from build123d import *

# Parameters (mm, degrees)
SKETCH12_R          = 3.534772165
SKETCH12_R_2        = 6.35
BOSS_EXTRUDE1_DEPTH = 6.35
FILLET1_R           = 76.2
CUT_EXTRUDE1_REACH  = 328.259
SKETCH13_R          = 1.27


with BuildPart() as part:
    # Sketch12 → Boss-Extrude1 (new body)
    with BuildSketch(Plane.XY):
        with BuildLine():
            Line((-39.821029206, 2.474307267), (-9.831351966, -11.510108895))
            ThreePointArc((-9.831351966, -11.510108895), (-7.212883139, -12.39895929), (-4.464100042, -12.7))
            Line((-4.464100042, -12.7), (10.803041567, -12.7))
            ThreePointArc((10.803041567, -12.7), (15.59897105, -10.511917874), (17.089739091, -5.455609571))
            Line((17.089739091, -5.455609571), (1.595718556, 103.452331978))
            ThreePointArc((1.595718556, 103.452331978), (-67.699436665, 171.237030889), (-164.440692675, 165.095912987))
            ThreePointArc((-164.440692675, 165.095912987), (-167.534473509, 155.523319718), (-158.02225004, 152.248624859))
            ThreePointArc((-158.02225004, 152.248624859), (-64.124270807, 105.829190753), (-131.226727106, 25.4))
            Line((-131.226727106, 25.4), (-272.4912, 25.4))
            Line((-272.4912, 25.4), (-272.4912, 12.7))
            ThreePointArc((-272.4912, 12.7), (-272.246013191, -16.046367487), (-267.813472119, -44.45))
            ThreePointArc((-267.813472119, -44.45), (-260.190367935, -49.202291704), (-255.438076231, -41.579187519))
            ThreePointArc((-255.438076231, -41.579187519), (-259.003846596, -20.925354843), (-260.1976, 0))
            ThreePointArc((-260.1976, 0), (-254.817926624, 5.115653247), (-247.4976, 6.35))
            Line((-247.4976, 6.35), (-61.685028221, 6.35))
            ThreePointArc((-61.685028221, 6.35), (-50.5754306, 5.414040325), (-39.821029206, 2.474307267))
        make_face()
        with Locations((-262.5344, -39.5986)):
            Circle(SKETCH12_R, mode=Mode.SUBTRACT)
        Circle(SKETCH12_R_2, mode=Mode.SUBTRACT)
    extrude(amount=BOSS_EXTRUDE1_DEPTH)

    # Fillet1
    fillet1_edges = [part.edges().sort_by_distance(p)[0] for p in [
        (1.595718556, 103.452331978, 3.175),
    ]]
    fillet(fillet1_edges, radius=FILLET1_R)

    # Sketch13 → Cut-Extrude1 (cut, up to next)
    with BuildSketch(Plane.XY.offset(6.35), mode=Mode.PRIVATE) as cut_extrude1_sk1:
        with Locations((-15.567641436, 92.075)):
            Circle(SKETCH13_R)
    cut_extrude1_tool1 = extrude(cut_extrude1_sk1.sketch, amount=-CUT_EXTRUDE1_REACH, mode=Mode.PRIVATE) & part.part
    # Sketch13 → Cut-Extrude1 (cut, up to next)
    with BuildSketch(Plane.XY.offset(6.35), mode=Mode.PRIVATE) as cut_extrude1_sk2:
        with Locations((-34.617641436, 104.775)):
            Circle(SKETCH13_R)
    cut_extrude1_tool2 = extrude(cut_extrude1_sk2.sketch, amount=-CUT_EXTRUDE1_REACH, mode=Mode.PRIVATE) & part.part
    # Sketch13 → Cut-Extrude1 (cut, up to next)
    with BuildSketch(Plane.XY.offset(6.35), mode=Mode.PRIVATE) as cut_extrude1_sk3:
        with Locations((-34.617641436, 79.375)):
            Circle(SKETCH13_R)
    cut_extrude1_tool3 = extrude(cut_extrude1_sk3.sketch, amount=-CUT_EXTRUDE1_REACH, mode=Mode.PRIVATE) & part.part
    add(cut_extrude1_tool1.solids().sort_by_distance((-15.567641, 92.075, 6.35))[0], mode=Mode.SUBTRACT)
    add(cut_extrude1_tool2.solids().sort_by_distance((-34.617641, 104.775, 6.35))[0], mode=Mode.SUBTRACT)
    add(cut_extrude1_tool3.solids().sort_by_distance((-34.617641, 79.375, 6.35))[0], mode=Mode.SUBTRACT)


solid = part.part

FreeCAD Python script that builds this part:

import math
import FreeCAD as App
import Part
import Sketcher
from FreeCAD import Vector
Q = App.Units.Quantity


def edges_at(feature, points):
    """Names of the edges that pass closest to the given points."""
    edges = feature.Shape.Edges
    near = lambda p: min(range(len(edges)), key=lambda i: edges[i].distToShape(Part.Vertex(*p))[0])
    return sorted({f"Edge{near(p) + 1}" for p in points})

doc = App.newDocument("Part")
params = doc.addObject("Spreadsheet::Sheet", "Params")
for row, (alias, value) in enumerate([
    ("sketch1_diameter", "0.5 in"),
    ("sketch1_radius", "0.5 in"),
    ("sketch1_radius2", "0.5 in"),
    ("sketch1_radius3", "0.25 in"),
    ("sketch1_height", "0.5 in"),
    ("pad1_length", "0.25 in"),
    ("fillet_radius", "3 in"),
    ("sketch2_diameter", "0.1 in"),
    ("sketch3_diameter", "0.1 in"),
    ("sketch4_diameter", "0.1 in"),
], start=1):
    params.set(f"A{row}", alias)
    params.set(f"B{row}", "=" + value)
    params.setAlias(f"B{row}", alias)

body = doc.addObject("PartDesign::Body", "Body")

# Sketch on XY plane
sketch1 = body.newObject("Sketcher::SketchObject", "Sketch")
sketch1.AttachmentSupport = (doc.getObject("XY_Plane"), [""])
sketch1.MapMode = "FlatFace"
sketch1.addGeometry([
    Part.LineSegment(Vector(-39.821029, 2.474307, 0), Vector(-9.831352, -11.510109, 0)),  # 0
    Part.ArcOfCircle(Part.Circle(Vector(-4.4641, 0, 0), Vector(0, 0, 1), 12.7), math.radians(-115), math.radians(-90)),  # 1
    Part.LineSegment(Vector(-4.4641, -12.7, 0), Vector(10.803042, -12.7, 0)),  # 2
    Part.ArcOfCircle(Part.Circle(Vector(10.803042, -6.35, 0), Vector(0, 0, 1), 6.35), math.radians(-90), math.radians(8.096971)),  # 3
    Part.LineSegment(Vector(17.089739, -5.45561, 0), Vector(1.595719, 103.452332, 0)),  # 4
    Part.ArcOfCircle(Part.Circle(Vector(-109.17363, 59.526678, 0), Vector(0, 0, 1), 119.160864), math.radians(21.630832), math.radians(117.632726)),  # 5
    Part.ArcOfCircle(Part.Circle(Vector(-161.109675, 158.733118, 0), Vector(0, 0, 1), 7.18198), math.radians(117.632726), math.radians(295.460255)),  # 6
    Part.ArcOfCircle(Part.Circle(Vector(-129.359675, 92.048854, 0), Vector(0, 0, 1), 66.675), math.radians(-91.604622), math.radians(115.460255)),  # 7
    Part.LineSegment(Vector(-131.226727, 25.4, 0), Vector(-272.4912, 25.4, 0)),  # 8
    Part.LineSegment(Vector(-272.4912, 25.4, 0), Vector(-272.4912, 12.7, 0)),  # 9
    Part.ArcOfCircle(Part.Circle(Vector(-76.2, 0, 0), Vector(0, 0, 1), 196.701615), math.radians(176.298135), math.radians(193.060324)),  # 10
    Part.ArcOfCircle(Part.Circle(Vector(-261.625774, -43.014594, 0), Vector(0, 0, 1), 6.352007), math.radians(-166.939676), math.radians(13.060324)),  # 11
    Part.ArcOfCircle(Part.Circle(Vector(-76.2, 0, 0), Vector(0, 0, 1), 183.9976), math.radians(-180), math.radians(-166.939676)),  # 12
    Part.ArcOfCircle(Part.Circle(Vector(-249.138314, -6.243572, 0), Vector(0, 0, 1), 12.7), math.radians(82.577208), math.radians(150.552895)),  # 13
    Part.LineSegment(Vector(-247.4976, 6.35, 0), Vector(-61.685028, 6.35, 0)),  # 14
    Part.ArcOfCircle(Part.Circle(Vector(-61.236551, -54.728684, 0), Vector(0, 0, 1), 61.08033), math.radians(69.475223), math.radians(90.420694)),  # 15
    Part.Circle(Vector(-262.5344, -39.5986, 0), Vector(0, 0, 1), 3.534772),  # 16
    Part.Circle(Vector(0, 0, 0), Vector(0, 0, 1), 6.35),  # 17
], False)
sketch1.addConstraint([
    Sketcher.Constraint("Coincident", 0, 2, 1, 1),
    Sketcher.Constraint("Coincident", 1, 2, 2, 1),
    Sketcher.Constraint("Coincident", 2, 2, 3, 1),
    Sketcher.Constraint("Coincident", 3, 2, 4, 1),
    Sketcher.Constraint("Coincident", 4, 2, 5, 1),
    Sketcher.Constraint("Coincident", 5, 2, 6, 1),
    Sketcher.Constraint("Coincident", 6, 2, 7, 2),
    Sketcher.Constraint("Coincident", 7, 1, 8, 1),
    Sketcher.Constraint("Coincident", 8, 2, 9, 1),
    Sketcher.Constraint("Coincident", 9, 2, 10, 1),
    Sketcher.Constraint("Coincident", 10, 2, 11, 1),
    Sketcher.Constraint("Coincident", 11, 2, 12, 2),
    Sketcher.Constraint("Coincident", 12, 1, 13, 2),
    Sketcher.Constraint("Coincident", 13, 1, 14, 1),
    Sketcher.Constraint("Coincident", 14, 2, 15, 2),
    Sketcher.Constraint("Coincident", 15, 1, 0, 1),
    Sketcher.Constraint("Horizontal", 2),
    Sketcher.Constraint("Horizontal", 8),
    Sketcher.Constraint("Vertical", 9),
    Sketcher.Constraint("Horizontal", 14),
    Sketcher.Constraint("Coincident", 17, 3, -1, 1),
    Sketcher.Constraint("Coincident", 12, 3, 10, 3),
    Sketcher.Constraint("PointOnObject", 1, 3, -1),
    Sketcher.Constraint("PointOnObject", 10, 3, -1),
    Sketcher.Constraint("PointOnObject", 12, 1, -1),
    Sketcher.Constraint("Diameter", 17, Q("0.5 in")),
    Sketcher.Constraint("Radius", 1, Q("0.5 in")),
    Sketcher.Constraint("Radius", 13, Q("0.5 in")),
    Sketcher.Constraint("Radius", 3, Q("0.25 in")),
    Sketcher.Constraint("DistanceY", 9, 2, 9, 1, Q("0.5 in")),
    Sketcher.Constraint("DistanceX", 10, 3, -1, 1, Q("3 in")),
    Sketcher.Constraint("DistanceY", -1, 1, 7, 1, Q("1 in")),
    Sketcher.Constraint("Radius", 7, Q("2.625 in")),
    Sketcher.Constraint("Radius", 12, Q("7.244 in")),
    Sketcher.Constraint("DistanceX", 12, 1, 13, 1, Q("0.5 in")),
    Sketcher.Constraint("DistanceY", 10, 2, -1, 1, Q("1.75 in")),
    Sketcher.Constraint("DistanceY", -1, 1, 13, 1, Q("0.25 in")),
    Sketcher.Constraint("DistanceX", 6, 3, 7, 3, Q("1.25 in")),
    Sketcher.Constraint("DistanceX", 16, 3, -1, 1, Q("10.336 in")),
    Sketcher.Constraint("DistanceY", 16, 3, -1, 1, Q("1.559 in")),
    Sketcher.Constraint("DistanceX", 8, 2, -1, 1, Q("10.728 in")),
    Sketcher.Constraint("Radius", 6, Q("7.18198 mm")),
    Sketcher.Constraint("Radius", 15, Q("61.08033 mm")),
    Sketcher.Constraint("Diameter", 16, Q("7.069544 mm")),
    Sketcher.Constraint("Radius", 5, Q("119.160864 mm")),
    Sketcher.Constraint("DistanceX", 2, 1, 2, 2, Q("15.267142 mm")),
    Sketcher.Constraint("DistanceX", 14, 1, 14, 2, Q("185.812572 mm")),
    Sketcher.Constraint("DistanceX", 1, 3, -1, 1, Q("4.4641 mm")),
    Sketcher.Constraint("DistanceX", 1, 2, -1, 1, Q("4.4641 mm")),
    Sketcher.Constraint("DistanceX", 11, 3, 7, 3, Q("132.266099 mm")),
    Sketcher.Constraint("DistanceX", 15, 3, 0, 2, Q("51.405199 mm")),
    Sketcher.Constraint("DistanceX", 14, 2, 15, 1, Q("21.863999 mm")),
    Sketcher.Constraint("DistanceX", 8, 2, 8, 1, Q("141.264473 mm")),
    Sketcher.Constraint("DistanceX", -1, 1, 3, 3, Q("10.803042 mm")),
    Sketcher.Constraint("DistanceX", 5, 3, -1, 1, Q("109.17363 mm")),
    Sketcher.Constraint("DistanceY", -1, 1, 5, 3, Q("59.526678 mm")),
    Sketcher.Constraint("DistanceX", 15, 3, -1, 1, Q("61.236551 mm")),
    Sketcher.Constraint("DistanceX", -1, 1, 3, 2, Q("17.089739 mm")),
    Sketcher.Constraint("DistanceX", -1, 1, 4, 2, Q("1.595719 mm")),
    Sketcher.Constraint("DistanceX", 6, 2, -1, 1, Q("158.02225 mm")),
    Sketcher.Constraint("DistanceY", 7, 3, 5, 2, Q("73.047059 mm")),
    Sketcher.Constraint("DistanceX", 11, 2, -1, 1, Q("255.438076 mm")),
])
sketch1.setExpression("Constraints[25]", "Params.sketch1_diameter")
sketch1.setExpression("Constraints[26]", "Params.sketch1_radius")
sketch1.setExpression("Constraints[27]", "Params.sketch1_radius2")
sketch1.setExpression("Constraints[28]", "Params.sketch1_radius3")
sketch1.setExpression("Constraints[29]", "Params.sketch1_height")
pad1 = body.newObject("PartDesign::Pad", "Pad")
pad1.Profile = sketch1
pad1.setExpression("Length", "Params.pad1_length")
doc.recompute()

fillet = body.newObject("PartDesign::Fillet", "Fillet")
fillet.Base = (pad1, edges_at(pad1, [(1.596, 103.452, 3.175)]))
fillet.setExpression("Radius", "Params.fillet_radius")

# Sketch on XY plane
sketch2 = body.newObject("Sketcher::SketchObject", "Sketch001")
sketch2.AttachmentSupport = (doc.getObject("XY_Plane"), [""])
sketch2.MapMode = "FlatFace"
sketch2.AttachmentOffset = App.Placement(Vector(0, 0, 0.25 * 25.4), App.Rotation())
sketch2.addGeometry(Part.Circle(Vector(-15.6, 92.1, 0), Vector(0, 0, 1), 1.3), False)
sketch2.addConstraint([
    Sketcher.Constraint("Diameter", 0, Q("0.1 in")),
    Sketcher.Constraint("DistanceY", -1, 1, 0, 3, Q("3.625 in")),
    Sketcher.Constraint("DistanceX", 0, 3, -1, 1, Q("15.567641 mm")),
])
sketch2.setExpression("Constraints[0]", "Params.sketch2_diameter")
pocket1 = body.newObject("PartDesign::Pocket", "Pocket")
pocket1.Profile = sketch2
pocket1.Type = "UpToFirst"

# Sketch on XY plane
sketch3 = body.newObject("Sketcher::SketchObject", "Sketch002")
sketch3.AttachmentSupport = (doc.getObject("XY_Plane"), [""])
sketch3.MapMode = "FlatFace"
sketch3.AttachmentOffset = App.Placement(Vector(0, 0, 0.25 * 25.4), App.Rotation())
sketch3.addGeometry(Part.Circle(Vector(-34.6, 104.8, 0), Vector(0, 0, 1), 1.3), False)
sketch3.addConstraint([
    Sketcher.Constraint("Diameter", 0, Q("0.1 in")),
    Sketcher.Constraint("DistanceY", -1, 1, 0, 3, Q("4.125 in")),
    Sketcher.Constraint("DistanceX", 0, 3, -1, 1, Q("34.617641 mm")),
])
sketch3.setExpression("Constraints[0]", "Params.sketch3_diameter")
pocket2 = body.newObject("PartDesign::Pocket", "Pocket001")
pocket2.Profile = sketch3
pocket2.Type = "UpToFirst"

# Sketch on XY plane
sketch4 = body.newObject("Sketcher::SketchObject", "Sketch003")
sketch4.AttachmentSupport = (doc.getObject("XY_Plane"), [""])
sketch4.MapMode = "FlatFace"
sketch4.AttachmentOffset = App.Placement(Vector(0, 0, 0.25 * 25.4), App.Rotation())
sketch4.addGeometry(Part.Circle(Vector(-34.6, 79.4, 0), Vector(0, 0, 1), 1.3), False)
sketch4.addConstraint([
    Sketcher.Constraint("Diameter", 0, Q("0.1 in")),
    Sketcher.Constraint("DistanceY", -1, 1, 0, 3, Q("3.125 in")),
    Sketcher.Constraint("DistanceX", 0, 3, -1, 1, Q("34.617641 mm")),
])
sketch4.setExpression("Constraints[0]", "Params.sketch4_diameter")
pocket3 = body.newObject("PartDesign::Pocket", "Pocket002")
pocket3.Profile = sketch4
pocket3.Type = "UpToFirst"

doc.recompute()
